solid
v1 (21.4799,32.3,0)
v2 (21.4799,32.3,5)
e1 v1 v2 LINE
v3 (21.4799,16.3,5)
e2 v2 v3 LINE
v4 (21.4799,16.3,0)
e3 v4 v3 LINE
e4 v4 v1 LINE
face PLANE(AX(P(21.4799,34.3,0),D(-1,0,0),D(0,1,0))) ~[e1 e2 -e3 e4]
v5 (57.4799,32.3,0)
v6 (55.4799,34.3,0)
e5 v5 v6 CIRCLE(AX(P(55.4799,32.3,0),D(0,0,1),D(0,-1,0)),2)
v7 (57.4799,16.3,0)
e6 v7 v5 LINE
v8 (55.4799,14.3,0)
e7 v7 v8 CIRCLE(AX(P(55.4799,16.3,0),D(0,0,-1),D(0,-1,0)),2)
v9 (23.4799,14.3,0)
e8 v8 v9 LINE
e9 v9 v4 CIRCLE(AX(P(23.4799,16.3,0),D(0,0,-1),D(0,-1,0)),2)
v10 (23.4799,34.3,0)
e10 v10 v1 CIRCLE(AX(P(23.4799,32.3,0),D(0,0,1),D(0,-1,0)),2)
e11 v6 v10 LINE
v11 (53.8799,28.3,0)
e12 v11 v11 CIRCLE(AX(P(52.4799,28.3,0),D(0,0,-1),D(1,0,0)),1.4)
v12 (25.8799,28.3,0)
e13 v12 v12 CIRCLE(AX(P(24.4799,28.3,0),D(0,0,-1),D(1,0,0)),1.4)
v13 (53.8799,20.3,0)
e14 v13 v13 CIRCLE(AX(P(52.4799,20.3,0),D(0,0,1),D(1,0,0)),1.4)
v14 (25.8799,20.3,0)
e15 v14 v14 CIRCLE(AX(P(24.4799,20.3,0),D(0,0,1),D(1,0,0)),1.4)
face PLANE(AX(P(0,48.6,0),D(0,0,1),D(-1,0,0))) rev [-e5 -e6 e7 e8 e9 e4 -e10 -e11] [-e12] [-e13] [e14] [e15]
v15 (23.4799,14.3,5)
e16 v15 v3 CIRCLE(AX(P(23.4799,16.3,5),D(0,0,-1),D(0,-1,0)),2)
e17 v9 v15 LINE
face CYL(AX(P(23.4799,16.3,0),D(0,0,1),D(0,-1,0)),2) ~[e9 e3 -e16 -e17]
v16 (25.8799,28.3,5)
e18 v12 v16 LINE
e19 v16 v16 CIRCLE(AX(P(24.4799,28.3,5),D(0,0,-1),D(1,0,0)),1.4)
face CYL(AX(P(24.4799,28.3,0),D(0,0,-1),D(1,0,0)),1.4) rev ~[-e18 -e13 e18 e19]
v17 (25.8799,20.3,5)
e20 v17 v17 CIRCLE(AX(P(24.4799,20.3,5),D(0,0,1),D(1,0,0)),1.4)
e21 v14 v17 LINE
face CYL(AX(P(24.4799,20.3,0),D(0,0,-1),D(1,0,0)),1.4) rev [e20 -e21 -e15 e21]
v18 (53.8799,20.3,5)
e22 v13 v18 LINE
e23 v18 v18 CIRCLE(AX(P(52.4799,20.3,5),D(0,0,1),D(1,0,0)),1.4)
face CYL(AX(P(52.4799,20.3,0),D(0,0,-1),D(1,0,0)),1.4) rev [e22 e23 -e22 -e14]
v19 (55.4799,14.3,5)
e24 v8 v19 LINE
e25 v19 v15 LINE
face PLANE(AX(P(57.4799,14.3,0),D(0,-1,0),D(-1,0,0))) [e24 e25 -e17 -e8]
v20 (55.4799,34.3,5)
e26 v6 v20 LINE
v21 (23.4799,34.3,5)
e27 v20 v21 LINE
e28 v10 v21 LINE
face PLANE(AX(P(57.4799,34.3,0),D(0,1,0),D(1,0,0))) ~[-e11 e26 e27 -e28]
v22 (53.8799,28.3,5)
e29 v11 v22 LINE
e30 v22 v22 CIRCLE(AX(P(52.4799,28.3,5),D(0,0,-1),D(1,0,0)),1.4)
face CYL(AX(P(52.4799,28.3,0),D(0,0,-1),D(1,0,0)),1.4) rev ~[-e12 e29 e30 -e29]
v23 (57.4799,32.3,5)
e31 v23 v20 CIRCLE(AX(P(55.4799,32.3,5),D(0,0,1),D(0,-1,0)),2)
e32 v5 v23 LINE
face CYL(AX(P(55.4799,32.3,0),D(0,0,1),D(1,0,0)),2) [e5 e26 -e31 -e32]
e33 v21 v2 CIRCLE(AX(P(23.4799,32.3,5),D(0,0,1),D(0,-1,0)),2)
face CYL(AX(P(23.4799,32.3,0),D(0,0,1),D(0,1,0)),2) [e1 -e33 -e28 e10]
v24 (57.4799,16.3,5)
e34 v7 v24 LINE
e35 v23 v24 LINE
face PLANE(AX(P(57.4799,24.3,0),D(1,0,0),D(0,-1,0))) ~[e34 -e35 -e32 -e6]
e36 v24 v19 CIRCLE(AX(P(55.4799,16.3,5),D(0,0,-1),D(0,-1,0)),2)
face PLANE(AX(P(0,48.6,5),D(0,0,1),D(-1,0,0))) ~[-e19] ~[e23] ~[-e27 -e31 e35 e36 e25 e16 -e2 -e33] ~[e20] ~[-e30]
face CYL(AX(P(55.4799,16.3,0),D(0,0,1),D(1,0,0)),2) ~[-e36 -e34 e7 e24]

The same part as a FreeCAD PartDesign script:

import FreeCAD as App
import Part
import Sketcher
from FreeCAD import Vector


def edges_at(feature, points):
    """Names of the edges that pass closest to the given points."""
    edges = feature.Shape.Edges
    near = lambda p: min(range(len(edges)), key=lambda i: edges[i].distToShape(Part.Vertex(*p))[0])
    return sorted({f"Edge{near(p) + 1}" for p in points})

doc = App.newDocument("Part")
body = doc.addObject("PartDesign::Body", "Body")

# Sketch on XY plane
sketch1 = body.newObject("Sketcher::SketchObject", "Sketch")
sketch1.AttachmentSupport = (doc.getObject("XY_Plane"), [""])
sketch1.MapMode = "FlatFace"
sketch1.addGeometry([
    Part.LineSegment(Vector(57.5, 24.3, 0), Vector(21.5, 24.3, 0)),  # 0
    Part.LineSegment(Vector(21.5, 24.3, 0), Vector(21.5, 14.3, 0)),  # 1
    Part.LineSegment(Vector(21.5, 14.3, 0), Vector(57.5, 14.3, 0)),  # 2
    Part.LineSegment(Vector(57.5, 14.3, 0), Vector(57.5, 24.3, 0)),  # 3
    Part.Circle(Vector(24.5, 20.3, 0), Vector(0, 0, 1), 1.4),  # 4
    Part.Circle(Vector(52.5, 20.3, 0), Vector(0, 0, 1), 1.4),  # 5
], False)
sketch1.addConstraint([
    Sketcher.Constraint("Coincident", 0, 2, 1, 1),
    Sketcher.Constraint("Coincident", 1, 2, 2, 1),
    Sketcher.Constraint("Coincident", 2, 2, 3, 1),
    Sketcher.Constraint("Coincident", 3, 2, 0, 1),
    Sketcher.Constraint("Horizontal", 0),
    Sketcher.Constraint("Vertical", 1),
    Sketcher.Constraint("Horizontal", 2),
    Sketcher.Constraint("Vertical", 3),
    Sketcher.Constraint("Equal", 4, 5),
    Sketcher.Constraint("Horizontal", 4, 3, 5, 3),
    Sketcher.Constraint("DistanceX", 0, 2, 0, 1, 36.0),
    Sketcher.Constraint("DistanceY", 1, 2, 1, 1, 10.0),
    Sketcher.Constraint("DistanceX", 0, 2, 4, 3, 3.0),
    Sketcher.Constraint("Diameter", 4, 2.8),
    Sketcher.Constraint("DistanceX", 4, 3, 5, 3, 28.0),
    Sketcher.Constraint("DistanceY", 4, 3, 0, 2, 4.0),
    Sketcher.Constraint("DistanceY", -1, 1, 4, 3, 20.3),
    Sketcher.Constraint("DistanceX", -1, 1, 4, 3, 24.48),
])
pad1 = body.newObject("PartDesign::Pad", "Pad")
pad1.Profile = sketch1
pad1.Length = 5
doc.recompute()

fillet = body.newObject("PartDesign::Fillet", "Fillet")
fillet.Base = (pad1, edges_at(pad1, [(21.48, 14.3, 2.5), (57.48, 14.3, 2.5)]))
fillet.Radius = 2
doc.recompute()

datumplane = body.newObject("PartDesign::Plane", "DatumPlane")
datumplane.AttachmentSupport = (doc.getObject("XZ_Plane"), [""])
datumplane.MapMode = "FlatFace"
datumplane.AttachmentOffset = App.Placement(Vector(0, 0, -24.3), App.Rotation())
mirrored = body.newObject("PartDesign::Mirrored", "Mirrored")
mirrored.Originals = [pad1, fillet]
mirrored.MirrorPlane = (datumplane, [""])
body.Tip = mirrored

doc.recompute()
